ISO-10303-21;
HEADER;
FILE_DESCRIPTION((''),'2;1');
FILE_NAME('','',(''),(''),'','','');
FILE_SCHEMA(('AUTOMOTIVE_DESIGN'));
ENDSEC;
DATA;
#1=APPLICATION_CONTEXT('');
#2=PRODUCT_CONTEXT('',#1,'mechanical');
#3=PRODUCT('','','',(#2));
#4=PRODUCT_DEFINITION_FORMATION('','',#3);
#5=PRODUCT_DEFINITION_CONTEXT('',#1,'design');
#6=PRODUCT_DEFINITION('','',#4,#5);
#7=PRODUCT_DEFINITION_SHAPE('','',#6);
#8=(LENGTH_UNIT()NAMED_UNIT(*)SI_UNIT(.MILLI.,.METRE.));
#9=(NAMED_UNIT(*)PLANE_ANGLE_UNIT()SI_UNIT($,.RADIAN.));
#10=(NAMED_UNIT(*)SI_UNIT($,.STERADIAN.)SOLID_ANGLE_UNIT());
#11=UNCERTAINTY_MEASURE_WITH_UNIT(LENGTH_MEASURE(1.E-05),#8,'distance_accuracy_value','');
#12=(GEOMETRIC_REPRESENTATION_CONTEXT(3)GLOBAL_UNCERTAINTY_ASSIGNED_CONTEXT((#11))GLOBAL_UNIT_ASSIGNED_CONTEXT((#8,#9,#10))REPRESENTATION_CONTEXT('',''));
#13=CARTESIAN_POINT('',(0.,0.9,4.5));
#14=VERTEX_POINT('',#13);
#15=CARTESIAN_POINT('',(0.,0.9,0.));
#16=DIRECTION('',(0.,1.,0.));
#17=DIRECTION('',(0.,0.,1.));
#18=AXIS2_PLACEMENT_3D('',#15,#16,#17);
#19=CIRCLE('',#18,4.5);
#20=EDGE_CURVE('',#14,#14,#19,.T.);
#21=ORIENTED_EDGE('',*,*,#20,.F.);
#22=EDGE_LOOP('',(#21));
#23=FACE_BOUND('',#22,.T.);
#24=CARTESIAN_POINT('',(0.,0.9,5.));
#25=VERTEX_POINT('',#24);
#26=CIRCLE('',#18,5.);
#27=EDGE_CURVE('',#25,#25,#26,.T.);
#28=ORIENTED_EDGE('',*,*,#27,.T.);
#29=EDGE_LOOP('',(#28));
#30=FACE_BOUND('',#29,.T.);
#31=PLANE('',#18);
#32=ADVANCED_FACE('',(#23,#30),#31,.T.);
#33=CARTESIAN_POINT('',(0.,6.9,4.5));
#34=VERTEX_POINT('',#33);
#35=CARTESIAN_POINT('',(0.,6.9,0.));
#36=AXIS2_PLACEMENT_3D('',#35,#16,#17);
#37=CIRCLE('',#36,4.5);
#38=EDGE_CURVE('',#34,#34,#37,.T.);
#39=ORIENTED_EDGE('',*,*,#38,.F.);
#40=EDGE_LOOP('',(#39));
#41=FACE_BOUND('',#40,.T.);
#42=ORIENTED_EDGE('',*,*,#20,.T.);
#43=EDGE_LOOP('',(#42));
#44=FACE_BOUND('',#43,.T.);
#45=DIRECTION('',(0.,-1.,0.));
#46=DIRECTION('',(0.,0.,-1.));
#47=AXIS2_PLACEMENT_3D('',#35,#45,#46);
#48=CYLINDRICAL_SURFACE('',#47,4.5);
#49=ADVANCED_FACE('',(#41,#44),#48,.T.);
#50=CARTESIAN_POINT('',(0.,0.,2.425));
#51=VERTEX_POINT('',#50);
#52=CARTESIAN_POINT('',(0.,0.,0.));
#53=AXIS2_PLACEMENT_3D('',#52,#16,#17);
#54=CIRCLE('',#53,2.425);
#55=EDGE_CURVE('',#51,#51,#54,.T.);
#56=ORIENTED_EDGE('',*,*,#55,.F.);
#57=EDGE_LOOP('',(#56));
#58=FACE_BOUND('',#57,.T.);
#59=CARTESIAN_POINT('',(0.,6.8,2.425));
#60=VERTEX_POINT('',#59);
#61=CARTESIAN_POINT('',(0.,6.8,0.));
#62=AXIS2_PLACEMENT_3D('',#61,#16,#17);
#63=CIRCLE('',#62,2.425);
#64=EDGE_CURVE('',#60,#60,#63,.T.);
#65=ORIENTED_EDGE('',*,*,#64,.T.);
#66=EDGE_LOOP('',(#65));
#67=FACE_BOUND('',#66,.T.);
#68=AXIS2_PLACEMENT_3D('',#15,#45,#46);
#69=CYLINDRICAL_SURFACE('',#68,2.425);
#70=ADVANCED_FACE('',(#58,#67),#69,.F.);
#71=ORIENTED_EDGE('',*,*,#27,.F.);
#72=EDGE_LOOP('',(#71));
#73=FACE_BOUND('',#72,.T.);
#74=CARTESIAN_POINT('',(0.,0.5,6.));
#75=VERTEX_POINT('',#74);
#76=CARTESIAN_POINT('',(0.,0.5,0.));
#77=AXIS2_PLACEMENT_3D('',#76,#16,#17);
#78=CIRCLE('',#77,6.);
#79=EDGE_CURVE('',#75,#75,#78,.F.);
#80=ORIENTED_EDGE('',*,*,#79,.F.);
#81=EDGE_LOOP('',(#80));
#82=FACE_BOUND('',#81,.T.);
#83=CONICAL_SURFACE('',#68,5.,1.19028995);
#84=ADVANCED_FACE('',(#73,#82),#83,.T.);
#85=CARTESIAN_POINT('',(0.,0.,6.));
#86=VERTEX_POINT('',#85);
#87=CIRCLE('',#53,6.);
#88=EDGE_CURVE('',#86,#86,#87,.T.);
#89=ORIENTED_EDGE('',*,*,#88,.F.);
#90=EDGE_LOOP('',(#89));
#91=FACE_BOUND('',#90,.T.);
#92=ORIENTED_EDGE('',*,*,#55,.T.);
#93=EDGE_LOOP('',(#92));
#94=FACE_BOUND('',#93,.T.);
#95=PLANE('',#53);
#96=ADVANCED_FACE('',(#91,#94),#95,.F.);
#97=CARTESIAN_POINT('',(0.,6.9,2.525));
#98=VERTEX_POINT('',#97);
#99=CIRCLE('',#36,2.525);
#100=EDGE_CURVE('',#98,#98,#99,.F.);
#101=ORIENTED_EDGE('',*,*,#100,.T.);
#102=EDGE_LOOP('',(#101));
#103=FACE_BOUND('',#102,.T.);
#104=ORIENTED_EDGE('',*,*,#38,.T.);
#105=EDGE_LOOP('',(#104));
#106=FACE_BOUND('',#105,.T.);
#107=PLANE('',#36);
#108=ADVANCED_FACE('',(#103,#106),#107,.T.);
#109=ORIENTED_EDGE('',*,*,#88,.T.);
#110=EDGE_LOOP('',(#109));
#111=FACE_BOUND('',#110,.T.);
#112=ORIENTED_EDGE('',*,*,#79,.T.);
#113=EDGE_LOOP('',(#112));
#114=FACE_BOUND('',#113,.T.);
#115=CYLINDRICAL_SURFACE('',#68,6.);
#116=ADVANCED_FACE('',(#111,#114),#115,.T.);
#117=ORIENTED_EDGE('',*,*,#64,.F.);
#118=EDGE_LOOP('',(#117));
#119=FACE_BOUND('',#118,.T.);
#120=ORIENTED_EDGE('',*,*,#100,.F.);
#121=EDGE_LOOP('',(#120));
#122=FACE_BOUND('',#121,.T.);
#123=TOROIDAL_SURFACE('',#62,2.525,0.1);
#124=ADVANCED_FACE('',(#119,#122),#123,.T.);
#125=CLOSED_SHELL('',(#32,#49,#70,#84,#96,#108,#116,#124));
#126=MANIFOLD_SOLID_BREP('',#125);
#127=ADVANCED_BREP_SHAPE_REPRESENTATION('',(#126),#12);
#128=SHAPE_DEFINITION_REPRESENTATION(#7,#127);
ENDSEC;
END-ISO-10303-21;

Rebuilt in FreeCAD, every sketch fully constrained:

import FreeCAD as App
import Part
import Sketcher
from FreeCAD import Vector
Q = App.Units.Quantity


def edges_at(feature, points):
    """Names of the edges that pass closest to the given points."""
    edges = feature.Shape.Edges
    near = lambda p: min(range(len(edges)), key=lambda i: edges[i].distToShape(Part.Vertex(*p))[0])
    return sorted({f"Edge{near(p) + 1}" for p in points})

doc = App.newDocument("Part")
body = doc.addObject("PartDesign::Body", "Body")

# Sketch on XZ plane
sketch1 = body.newObject("Sketcher::SketchObject", "Sketch")
sketch1.AttachmentSupport = (doc.getObject("XZ_Plane"), [""])
sketch1.MapMode = "FlatFace"
sketch1.addGeometry(Part.Circle(Vector(0, 0, 0), Vector(0, 0, 1), 6), False)
sketch1.addGeometry(Part.Circle(Vector(0, 0, 0), Vector(0, 0, 1), 2.4), False)
sketch1.addConstraint(Sketcher.Constraint("Coincident", 0, 3, -1, 1))
sketch1.addConstraint(Sketcher.Constraint("Coincident", 1, 3, -1, 1))
sketch1.addConstraint(Sketcher.Constraint("Diameter", 0, Q("12 mm")))
sketch1.addConstraint(Sketcher.Constraint("Diameter", 1, Q("4.85 mm")))
pad1 = body.newObject("PartDesign::Pad", "Pad")
pad1.Profile = sketch1
pad1.Length = 0.9
pad1.Reversed = True

# Sketch on XZ plane
sketch2 = body.newObject("Sketcher::SketchObject", "Sketch001")
sketch2.AttachmentSupport = (doc.getObject("XZ_Plane"), [""])
sketch2.MapMode = "FlatFace"
sketch2.AttachmentOffset = App.Placement(Vector(0, 0, -0.9), App.Rotation())
sketch2.addGeometry(Part.Circle(Vector(0, 0, 0), Vector(0, 0, 1), 4.5), False)
sketch2.addGeometry(Part.Circle(Vector(0, 0, 0), Vector(0, 0, 1), 2.4), False)
sketch2.addConstraint(Sketcher.Constraint("Coincident", 0, 3, -1, 1))
sketch2.addConstraint(Sketcher.Constraint("Coincident", 1, 3, -1, 1))
sketch2.addConstraint(Sketcher.Constraint("Diameter", 0, Q("9 mm")))
sketch2.addConstraint(Sketcher.Constraint("Diameter", 1, Q("4.85 mm")))
pad2 = body.newObject("PartDesign::Pad", "Pad001")
pad2.Profile = sketch2
pad2.Length = 6
pad2.Reversed = True
doc.recompute()

fillet = body.newObject("PartDesign::Fillet", "Fillet")
fillet.Base = (pad2, edges_at(pad2, [(-2.425, 6.9, 0)]))
fillet.Radius = 0.1
doc.recompute()

chamfer = body.newObject("PartDesign::Chamfer", "Chamfer")
chamfer.Base = (fillet, edges_at(fillet, [(-6, 0.9, 0)]))
chamfer.ChamferType = "Two distances"
chamfer.Size = 0.4
chamfer.Size2 = 1
chamfer.FlipDirection = True

doc.recompute()
